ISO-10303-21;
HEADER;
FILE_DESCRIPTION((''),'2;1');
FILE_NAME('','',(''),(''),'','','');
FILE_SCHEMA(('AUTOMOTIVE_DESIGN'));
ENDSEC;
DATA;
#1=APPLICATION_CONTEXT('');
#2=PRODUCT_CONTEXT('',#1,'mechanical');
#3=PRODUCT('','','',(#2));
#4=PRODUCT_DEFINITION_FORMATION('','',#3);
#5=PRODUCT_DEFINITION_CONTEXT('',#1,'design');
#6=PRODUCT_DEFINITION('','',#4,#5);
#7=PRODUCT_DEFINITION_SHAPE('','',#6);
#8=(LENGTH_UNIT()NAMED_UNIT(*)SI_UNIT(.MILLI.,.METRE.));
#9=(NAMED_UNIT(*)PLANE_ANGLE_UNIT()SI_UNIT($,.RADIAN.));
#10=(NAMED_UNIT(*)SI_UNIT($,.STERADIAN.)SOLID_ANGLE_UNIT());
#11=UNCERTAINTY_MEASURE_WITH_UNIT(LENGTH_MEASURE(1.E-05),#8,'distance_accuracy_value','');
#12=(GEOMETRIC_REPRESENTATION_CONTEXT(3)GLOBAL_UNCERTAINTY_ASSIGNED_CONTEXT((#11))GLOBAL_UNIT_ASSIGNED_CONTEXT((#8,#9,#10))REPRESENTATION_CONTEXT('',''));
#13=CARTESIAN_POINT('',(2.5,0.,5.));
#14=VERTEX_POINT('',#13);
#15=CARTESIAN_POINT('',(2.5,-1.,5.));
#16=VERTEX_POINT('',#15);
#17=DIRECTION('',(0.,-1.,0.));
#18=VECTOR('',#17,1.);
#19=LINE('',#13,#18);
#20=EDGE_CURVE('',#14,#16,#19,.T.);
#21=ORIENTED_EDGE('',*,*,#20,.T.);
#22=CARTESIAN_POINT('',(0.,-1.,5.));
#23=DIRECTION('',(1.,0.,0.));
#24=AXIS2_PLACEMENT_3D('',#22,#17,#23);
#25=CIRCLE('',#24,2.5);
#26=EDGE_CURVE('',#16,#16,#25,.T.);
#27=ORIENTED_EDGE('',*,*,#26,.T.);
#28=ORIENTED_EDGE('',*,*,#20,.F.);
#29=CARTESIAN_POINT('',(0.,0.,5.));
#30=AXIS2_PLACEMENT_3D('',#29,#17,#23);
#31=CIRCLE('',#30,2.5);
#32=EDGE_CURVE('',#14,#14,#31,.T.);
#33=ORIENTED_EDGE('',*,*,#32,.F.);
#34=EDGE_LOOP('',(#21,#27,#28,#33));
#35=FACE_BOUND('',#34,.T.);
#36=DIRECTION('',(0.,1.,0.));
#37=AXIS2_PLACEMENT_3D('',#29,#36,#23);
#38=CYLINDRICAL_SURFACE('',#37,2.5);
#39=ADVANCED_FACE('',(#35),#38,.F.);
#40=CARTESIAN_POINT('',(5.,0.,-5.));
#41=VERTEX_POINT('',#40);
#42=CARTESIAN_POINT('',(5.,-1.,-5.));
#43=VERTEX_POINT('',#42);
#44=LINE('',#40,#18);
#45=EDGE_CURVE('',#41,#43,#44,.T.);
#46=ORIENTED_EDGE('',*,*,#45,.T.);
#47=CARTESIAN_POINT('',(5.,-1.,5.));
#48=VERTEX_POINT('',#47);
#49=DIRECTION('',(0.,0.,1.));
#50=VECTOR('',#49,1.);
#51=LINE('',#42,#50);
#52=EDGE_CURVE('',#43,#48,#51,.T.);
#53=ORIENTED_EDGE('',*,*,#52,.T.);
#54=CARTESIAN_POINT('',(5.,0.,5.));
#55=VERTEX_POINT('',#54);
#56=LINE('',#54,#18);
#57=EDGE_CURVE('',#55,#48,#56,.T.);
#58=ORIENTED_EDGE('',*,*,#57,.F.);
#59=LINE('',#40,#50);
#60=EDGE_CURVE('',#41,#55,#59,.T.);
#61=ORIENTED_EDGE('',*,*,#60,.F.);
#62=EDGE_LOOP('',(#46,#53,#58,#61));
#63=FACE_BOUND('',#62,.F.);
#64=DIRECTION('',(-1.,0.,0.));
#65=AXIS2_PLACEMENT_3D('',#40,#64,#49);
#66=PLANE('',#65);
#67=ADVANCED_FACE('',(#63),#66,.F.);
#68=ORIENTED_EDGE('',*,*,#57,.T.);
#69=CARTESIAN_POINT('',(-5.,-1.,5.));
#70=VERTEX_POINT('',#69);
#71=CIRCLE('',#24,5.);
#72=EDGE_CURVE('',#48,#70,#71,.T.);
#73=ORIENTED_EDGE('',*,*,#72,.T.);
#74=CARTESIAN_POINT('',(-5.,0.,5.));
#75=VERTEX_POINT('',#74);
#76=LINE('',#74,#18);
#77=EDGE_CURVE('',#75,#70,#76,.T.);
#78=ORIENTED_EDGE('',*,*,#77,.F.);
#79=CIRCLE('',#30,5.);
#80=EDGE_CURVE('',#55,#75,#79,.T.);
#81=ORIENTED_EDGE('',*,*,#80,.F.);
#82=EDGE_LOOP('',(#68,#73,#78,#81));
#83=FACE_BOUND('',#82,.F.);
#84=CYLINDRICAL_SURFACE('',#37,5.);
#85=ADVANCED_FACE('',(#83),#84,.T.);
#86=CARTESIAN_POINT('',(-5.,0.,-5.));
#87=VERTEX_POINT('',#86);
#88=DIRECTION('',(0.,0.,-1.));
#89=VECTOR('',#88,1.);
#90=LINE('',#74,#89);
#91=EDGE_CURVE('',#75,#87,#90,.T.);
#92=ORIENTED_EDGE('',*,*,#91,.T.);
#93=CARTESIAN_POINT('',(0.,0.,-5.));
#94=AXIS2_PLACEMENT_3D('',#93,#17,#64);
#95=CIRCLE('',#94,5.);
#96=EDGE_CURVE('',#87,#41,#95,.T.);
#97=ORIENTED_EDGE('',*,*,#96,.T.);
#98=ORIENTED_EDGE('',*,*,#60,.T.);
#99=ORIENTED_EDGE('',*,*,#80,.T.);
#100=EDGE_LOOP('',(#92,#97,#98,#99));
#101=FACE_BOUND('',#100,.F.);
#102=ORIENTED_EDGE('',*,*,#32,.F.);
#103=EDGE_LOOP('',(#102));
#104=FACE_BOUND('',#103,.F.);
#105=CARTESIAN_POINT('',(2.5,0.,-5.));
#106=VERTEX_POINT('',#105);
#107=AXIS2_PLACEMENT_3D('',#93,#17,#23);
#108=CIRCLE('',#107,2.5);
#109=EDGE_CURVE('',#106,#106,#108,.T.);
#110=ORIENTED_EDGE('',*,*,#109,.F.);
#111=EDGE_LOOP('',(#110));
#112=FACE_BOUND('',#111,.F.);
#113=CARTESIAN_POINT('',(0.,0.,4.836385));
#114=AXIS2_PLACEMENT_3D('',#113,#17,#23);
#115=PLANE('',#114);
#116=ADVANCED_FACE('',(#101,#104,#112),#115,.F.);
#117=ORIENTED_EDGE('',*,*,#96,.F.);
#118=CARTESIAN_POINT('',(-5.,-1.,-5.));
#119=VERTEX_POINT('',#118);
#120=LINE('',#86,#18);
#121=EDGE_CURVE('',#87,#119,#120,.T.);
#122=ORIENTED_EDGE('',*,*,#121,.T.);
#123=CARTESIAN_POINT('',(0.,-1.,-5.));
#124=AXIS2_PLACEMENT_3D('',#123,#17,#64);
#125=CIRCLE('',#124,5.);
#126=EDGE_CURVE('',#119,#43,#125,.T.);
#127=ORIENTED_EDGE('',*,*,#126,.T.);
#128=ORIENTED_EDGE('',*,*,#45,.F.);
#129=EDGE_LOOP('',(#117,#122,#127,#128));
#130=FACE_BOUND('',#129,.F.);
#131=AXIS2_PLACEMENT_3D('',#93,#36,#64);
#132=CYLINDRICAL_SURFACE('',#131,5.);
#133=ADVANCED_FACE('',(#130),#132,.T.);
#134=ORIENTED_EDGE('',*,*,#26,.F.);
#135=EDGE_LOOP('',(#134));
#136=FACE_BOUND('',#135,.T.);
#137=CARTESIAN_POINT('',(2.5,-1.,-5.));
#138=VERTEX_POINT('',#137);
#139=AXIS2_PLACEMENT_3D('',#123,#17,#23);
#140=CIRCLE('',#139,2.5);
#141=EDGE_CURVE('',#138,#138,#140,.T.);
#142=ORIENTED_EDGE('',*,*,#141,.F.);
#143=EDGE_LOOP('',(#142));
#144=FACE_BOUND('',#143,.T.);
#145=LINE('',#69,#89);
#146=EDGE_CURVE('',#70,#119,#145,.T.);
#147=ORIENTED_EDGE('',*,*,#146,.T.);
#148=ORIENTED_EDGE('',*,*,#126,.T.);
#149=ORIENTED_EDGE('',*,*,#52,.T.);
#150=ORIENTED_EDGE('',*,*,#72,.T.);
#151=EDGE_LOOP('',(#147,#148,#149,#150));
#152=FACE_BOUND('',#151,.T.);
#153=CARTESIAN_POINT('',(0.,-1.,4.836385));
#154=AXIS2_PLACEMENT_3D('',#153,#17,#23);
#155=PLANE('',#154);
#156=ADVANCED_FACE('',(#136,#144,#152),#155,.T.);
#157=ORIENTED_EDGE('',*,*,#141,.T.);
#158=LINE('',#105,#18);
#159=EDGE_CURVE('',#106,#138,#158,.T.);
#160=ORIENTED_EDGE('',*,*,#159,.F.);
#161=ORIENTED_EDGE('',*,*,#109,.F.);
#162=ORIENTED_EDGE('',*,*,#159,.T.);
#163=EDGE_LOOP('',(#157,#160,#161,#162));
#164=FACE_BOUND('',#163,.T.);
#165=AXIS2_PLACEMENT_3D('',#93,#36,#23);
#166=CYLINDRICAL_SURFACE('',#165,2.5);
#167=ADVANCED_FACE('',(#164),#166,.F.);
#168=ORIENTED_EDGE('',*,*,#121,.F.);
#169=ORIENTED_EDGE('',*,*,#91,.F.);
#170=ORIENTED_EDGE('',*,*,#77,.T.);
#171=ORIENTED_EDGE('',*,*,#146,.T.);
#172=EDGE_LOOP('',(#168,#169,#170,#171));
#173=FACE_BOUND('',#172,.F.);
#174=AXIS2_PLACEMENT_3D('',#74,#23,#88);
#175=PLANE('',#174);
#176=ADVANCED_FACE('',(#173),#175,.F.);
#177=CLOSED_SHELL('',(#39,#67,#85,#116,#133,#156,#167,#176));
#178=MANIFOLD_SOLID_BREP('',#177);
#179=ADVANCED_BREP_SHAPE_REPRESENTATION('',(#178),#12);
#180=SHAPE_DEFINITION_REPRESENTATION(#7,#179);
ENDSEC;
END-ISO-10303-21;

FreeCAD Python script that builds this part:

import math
import FreeCAD as App
import Part
import Sketcher

V = App.Vector

doc = App.newDocument("Part")
body = doc.addObject("PartDesign::Body", "Body")

# Sketch on XZ plane
sketch1 = body.newObject("Sketcher::SketchObject", "Sketch")
sketch1.AttachmentSupport = (doc.getObject("XZ_Plane"), [""])
sketch1.MapMode = "FlatFace"
sketch1.addGeometry([
    Part.LineSegment(V(5, -5, 0), V(5, 5, 0)),  # 0
    Part.ArcOfCircle(Part.Circle(V(0, 5, 0), V(0, 0, 1), 5), math.radians(0), math.radians(180)),  # 1
    Part.LineSegment(V(-5, 5, 0), V(-5, -5, 0)),  # 2
    Part.ArcOfCircle(Part.Circle(V(0, -5, 0), V(0, 0, 1), 5), math.radians(180), math.radians(360)),  # 3
    Part.Circle(V(0, -5, 0), V(0, 0, 1), 2.5),  # 4
    Part.Circle(V(0, 5, 0), V(0, 0, 1), 2.5),  # 5
], False)
sketch1.addConstraint([
    Sketcher.Constraint("Tangent", 0, 2, 1, 1),
    Sketcher.Constraint("Tangent", 1, 2, 2, 1),
    Sketcher.Constraint("Tangent", 2, 2, 3, 1),
    Sketcher.Constraint("Tangent", 3, 2, 0, 1),
    Sketcher.Constraint("Vertical", 0),
    Sketcher.Constraint("Vertical", 2),
    Sketcher.Constraint("Coincident", 4, 3, 3, 3),
    Sketcher.Constraint("Coincident", 5, 3, 1, 3),
    Sketcher.Constraint("Equal", 4, 5),
    Sketcher.Constraint("Symmetric", 1, 3, 3, 3, -1, 1),
    Sketcher.Constraint("Diameter", 4, 5.0),
    Sketcher.Constraint("Radius", 1, 5.0),
    Sketcher.Constraint("DistanceY", 0, 1, 0, 2, 10.0),
])
pad1 = body.newObject("PartDesign::Pad", "Pad")
pad1.Profile = sketch1
pad1.Length = 1

doc.recompute()
